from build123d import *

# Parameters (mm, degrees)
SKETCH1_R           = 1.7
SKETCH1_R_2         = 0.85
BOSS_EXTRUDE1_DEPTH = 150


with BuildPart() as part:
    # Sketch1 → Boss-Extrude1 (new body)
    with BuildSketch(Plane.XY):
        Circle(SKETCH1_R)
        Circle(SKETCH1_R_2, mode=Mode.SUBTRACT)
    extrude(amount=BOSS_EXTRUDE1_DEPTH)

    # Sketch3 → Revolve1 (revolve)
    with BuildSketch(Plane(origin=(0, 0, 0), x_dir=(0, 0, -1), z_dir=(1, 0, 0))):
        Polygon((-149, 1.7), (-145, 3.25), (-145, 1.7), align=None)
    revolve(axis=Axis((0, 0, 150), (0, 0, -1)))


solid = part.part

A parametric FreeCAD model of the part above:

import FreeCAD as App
import Part
import Sketcher


def add_polygon(sketch, points):
    """Adds a closed chain of lines whose ends are joined by coincident constraints."""
    first, n = sketch.GeometryCount, len(points)
    for a, b in zip(points, points[1:] + points[:1]):
        sketch.addGeometry(Part.LineSegment(App.Vector(*a, 0), App.Vector(*b, 0)), False)
    for i in range(n):
        sketch.addConstraint(Sketcher.Constraint("Coincident", first + i, 2, first + (i + 1) % n, 1))

doc = App.newDocument("Part")
body = doc.addObject("PartDesign::Body", "Body")

sketch1 = doc.addObject("Sketcher::SketchObject", "Sketch")
body.addObject(sketch1)
sketch1.AttachmentSupport = (doc.XY_Plane, [""])
sketch1.MapMode = "FlatFace"
sketch1.addGeometry(Part.Circle(App.Vector(0, 0, 0), App.Vector(0, 0, 1), 1.7), False)
sketch1.addGeometry(Part.Circle(App.Vector(0, 0, 0), App.Vector(0, 0, 1), 0.85), False)
sketch1.addConstraint(Sketcher.Constraint("Coincident", 0, 3, -1, 1))
sketch1.addConstraint(Sketcher.Constraint("Coincident", 1, 3, -1, 1))
sketch1.addConstraint(Sketcher.Constraint("Diameter", 0, 3.4))
sketch1.addConstraint(Sketcher.Constraint("Diameter", 1, 1.7))
pad1 = doc.addObject("PartDesign::Pad", "Pad")
body.addObject(pad1)
pad1.Profile = sketch1
pad1.Length = 150

sketch2 = doc.addObject("Sketcher::SketchObject", "Sketch001")
body.addObject(sketch2)
sketch2.AttachmentSupport = (doc.YZ_Plane, [""])
sketch2.MapMode = "FlatFace"
add_polygon(sketch2, [(3.25, 145), (1.7, 149), (1.7, 145)])
sketch2.addConstraint(Sketcher.Constraint("Vertical", 1))
sketch2.addConstraint(Sketcher.Constraint("Horizontal", 2))
sketch2.addConstraint(Sketcher.Constraint("DistanceY", 1, 2, 1, 1, 4.0))
sketch2.addConstraint(Sketcher.Constraint("DistanceY", -1, 1, 0, 2, 149.0))
sketch2.addConstraint(Sketcher.Constraint("DistanceX", 2, 1, 2, 2, 1.55))
sketch2.addConstraint(Sketcher.Constraint("DistanceX", -1, 1, 0, 2, 1.7))
revolution = doc.addObject("PartDesign::Revolution", "Revolution")
body.addObject(revolution)
revolution.Profile = sketch2
revolution.ReferenceAxis = (sketch2, ["V_Axis"])
revolution.Angle = 360

doc.recompute()
